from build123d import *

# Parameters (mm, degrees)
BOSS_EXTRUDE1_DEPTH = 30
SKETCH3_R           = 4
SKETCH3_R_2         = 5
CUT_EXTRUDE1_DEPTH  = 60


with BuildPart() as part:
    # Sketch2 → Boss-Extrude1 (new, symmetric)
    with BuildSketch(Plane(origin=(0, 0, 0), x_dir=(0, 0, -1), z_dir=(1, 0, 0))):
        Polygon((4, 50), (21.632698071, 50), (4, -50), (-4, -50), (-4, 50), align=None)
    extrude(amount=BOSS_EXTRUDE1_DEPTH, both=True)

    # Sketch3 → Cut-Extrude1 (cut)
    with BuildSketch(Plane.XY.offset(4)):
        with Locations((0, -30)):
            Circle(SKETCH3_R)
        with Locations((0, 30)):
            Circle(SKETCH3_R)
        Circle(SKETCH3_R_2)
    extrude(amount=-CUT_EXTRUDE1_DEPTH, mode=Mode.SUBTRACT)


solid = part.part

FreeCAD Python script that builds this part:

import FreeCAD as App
import Part
import Sketcher
Q = App.Units.Quantity


def add_polygon(sketch, points):
    """Adds a closed chain of lines whose ends are joined by coincident constraints."""
    first, n = sketch.GeometryCount, len(points)
    for a, b in zip(points, points[1:] + points[:1]):
        sketch.addGeometry(Part.LineSegment(App.Vector(*a, 0), App.Vector(*b, 0)), False)
    for i in range(n):
        sketch.addConstraint(Sketcher.Constraint("Coincident", first + i, 2, first + (i + 1) % n, 1))

doc = App.newDocument("Part")
body = doc.addObject("PartDesign::Body", "Body")

# Sketch on YZ plane
sketch1 = body.newObject("Sketcher::SketchObject", "Sketch")
sketch1.AttachmentSupport = (doc.getObject("YZ_Plane"), [""])
sketch1.MapMode = "FlatFace"
add_polygon(sketch1, [(50, -22), (50, 4), (-50, 4), (-50, -4)])  # lines 0-3
sketch1.addConstraint([
    Sketcher.Constraint("Vertical", 0),
    Sketcher.Constraint("Horizontal", 1),
    Sketcher.Constraint("Vertical", 2),
    Sketcher.Constraint("Symmetric", 0, 2, 2, 2, -1, 1),
    Sketcher.Constraint("DistanceX", 1, 2, 1, 1, Q("100 mm")),
    Sketcher.Constraint("DistanceY", 2, 2, 2, 1, Q("8 mm")),
    Sketcher.Constraint("Angle", 3, Q("-10 deg")),
])
pad1 = body.newObject("PartDesign::Pad", "Pad")
pad1.Profile = sketch1
pad1.Length = 60
pad1.Midplane = True

# Sketch on XY plane
sketch2 = body.newObject("Sketcher::SketchObject", "Sketch001")
sketch2.AttachmentSupport = (doc.getObject("XY_Plane"), [""])
sketch2.MapMode = "FlatFace"
sketch2.AttachmentOffset = App.Placement(App.Vector(0, 0, 4), App.Rotation())
sketch2.addGeometry([
    Part.Circle(App.Vector(0, -30, 0), App.Vector(0, 0, 1), 4),
    Part.Circle(App.Vector(0, 30, 0), App.Vector(0, 0, 1), 4),
    Part.Circle(App.Vector(0, 0, 0), App.Vector(0, 0, 1), 5),
], False)
sketch2.addConstraint([
    Sketcher.Constraint("Coincident", 2, 3, -1, 1),
    Sketcher.Constraint("Equal", 0, 1),
    Sketcher.Constraint("Symmetric", 0, 3, 1, 3, -1, 1),
    Sketcher.Constraint("PointOnObject", 0, 3, -2),
    Sketcher.Constraint("Diameter", 0, Q("8 mm")),
    Sketcher.Constraint("Diameter", 2, Q("10 mm")),
    Sketcher.Constraint("DistanceY", 0, 3, -1, 1, Q("30 mm")),
])
pocket1 = body.newObject("PartDesign::Pocket", "Pocket")
pocket1.Profile = sketch2
pocket1.Length = 60

doc.recompute()
